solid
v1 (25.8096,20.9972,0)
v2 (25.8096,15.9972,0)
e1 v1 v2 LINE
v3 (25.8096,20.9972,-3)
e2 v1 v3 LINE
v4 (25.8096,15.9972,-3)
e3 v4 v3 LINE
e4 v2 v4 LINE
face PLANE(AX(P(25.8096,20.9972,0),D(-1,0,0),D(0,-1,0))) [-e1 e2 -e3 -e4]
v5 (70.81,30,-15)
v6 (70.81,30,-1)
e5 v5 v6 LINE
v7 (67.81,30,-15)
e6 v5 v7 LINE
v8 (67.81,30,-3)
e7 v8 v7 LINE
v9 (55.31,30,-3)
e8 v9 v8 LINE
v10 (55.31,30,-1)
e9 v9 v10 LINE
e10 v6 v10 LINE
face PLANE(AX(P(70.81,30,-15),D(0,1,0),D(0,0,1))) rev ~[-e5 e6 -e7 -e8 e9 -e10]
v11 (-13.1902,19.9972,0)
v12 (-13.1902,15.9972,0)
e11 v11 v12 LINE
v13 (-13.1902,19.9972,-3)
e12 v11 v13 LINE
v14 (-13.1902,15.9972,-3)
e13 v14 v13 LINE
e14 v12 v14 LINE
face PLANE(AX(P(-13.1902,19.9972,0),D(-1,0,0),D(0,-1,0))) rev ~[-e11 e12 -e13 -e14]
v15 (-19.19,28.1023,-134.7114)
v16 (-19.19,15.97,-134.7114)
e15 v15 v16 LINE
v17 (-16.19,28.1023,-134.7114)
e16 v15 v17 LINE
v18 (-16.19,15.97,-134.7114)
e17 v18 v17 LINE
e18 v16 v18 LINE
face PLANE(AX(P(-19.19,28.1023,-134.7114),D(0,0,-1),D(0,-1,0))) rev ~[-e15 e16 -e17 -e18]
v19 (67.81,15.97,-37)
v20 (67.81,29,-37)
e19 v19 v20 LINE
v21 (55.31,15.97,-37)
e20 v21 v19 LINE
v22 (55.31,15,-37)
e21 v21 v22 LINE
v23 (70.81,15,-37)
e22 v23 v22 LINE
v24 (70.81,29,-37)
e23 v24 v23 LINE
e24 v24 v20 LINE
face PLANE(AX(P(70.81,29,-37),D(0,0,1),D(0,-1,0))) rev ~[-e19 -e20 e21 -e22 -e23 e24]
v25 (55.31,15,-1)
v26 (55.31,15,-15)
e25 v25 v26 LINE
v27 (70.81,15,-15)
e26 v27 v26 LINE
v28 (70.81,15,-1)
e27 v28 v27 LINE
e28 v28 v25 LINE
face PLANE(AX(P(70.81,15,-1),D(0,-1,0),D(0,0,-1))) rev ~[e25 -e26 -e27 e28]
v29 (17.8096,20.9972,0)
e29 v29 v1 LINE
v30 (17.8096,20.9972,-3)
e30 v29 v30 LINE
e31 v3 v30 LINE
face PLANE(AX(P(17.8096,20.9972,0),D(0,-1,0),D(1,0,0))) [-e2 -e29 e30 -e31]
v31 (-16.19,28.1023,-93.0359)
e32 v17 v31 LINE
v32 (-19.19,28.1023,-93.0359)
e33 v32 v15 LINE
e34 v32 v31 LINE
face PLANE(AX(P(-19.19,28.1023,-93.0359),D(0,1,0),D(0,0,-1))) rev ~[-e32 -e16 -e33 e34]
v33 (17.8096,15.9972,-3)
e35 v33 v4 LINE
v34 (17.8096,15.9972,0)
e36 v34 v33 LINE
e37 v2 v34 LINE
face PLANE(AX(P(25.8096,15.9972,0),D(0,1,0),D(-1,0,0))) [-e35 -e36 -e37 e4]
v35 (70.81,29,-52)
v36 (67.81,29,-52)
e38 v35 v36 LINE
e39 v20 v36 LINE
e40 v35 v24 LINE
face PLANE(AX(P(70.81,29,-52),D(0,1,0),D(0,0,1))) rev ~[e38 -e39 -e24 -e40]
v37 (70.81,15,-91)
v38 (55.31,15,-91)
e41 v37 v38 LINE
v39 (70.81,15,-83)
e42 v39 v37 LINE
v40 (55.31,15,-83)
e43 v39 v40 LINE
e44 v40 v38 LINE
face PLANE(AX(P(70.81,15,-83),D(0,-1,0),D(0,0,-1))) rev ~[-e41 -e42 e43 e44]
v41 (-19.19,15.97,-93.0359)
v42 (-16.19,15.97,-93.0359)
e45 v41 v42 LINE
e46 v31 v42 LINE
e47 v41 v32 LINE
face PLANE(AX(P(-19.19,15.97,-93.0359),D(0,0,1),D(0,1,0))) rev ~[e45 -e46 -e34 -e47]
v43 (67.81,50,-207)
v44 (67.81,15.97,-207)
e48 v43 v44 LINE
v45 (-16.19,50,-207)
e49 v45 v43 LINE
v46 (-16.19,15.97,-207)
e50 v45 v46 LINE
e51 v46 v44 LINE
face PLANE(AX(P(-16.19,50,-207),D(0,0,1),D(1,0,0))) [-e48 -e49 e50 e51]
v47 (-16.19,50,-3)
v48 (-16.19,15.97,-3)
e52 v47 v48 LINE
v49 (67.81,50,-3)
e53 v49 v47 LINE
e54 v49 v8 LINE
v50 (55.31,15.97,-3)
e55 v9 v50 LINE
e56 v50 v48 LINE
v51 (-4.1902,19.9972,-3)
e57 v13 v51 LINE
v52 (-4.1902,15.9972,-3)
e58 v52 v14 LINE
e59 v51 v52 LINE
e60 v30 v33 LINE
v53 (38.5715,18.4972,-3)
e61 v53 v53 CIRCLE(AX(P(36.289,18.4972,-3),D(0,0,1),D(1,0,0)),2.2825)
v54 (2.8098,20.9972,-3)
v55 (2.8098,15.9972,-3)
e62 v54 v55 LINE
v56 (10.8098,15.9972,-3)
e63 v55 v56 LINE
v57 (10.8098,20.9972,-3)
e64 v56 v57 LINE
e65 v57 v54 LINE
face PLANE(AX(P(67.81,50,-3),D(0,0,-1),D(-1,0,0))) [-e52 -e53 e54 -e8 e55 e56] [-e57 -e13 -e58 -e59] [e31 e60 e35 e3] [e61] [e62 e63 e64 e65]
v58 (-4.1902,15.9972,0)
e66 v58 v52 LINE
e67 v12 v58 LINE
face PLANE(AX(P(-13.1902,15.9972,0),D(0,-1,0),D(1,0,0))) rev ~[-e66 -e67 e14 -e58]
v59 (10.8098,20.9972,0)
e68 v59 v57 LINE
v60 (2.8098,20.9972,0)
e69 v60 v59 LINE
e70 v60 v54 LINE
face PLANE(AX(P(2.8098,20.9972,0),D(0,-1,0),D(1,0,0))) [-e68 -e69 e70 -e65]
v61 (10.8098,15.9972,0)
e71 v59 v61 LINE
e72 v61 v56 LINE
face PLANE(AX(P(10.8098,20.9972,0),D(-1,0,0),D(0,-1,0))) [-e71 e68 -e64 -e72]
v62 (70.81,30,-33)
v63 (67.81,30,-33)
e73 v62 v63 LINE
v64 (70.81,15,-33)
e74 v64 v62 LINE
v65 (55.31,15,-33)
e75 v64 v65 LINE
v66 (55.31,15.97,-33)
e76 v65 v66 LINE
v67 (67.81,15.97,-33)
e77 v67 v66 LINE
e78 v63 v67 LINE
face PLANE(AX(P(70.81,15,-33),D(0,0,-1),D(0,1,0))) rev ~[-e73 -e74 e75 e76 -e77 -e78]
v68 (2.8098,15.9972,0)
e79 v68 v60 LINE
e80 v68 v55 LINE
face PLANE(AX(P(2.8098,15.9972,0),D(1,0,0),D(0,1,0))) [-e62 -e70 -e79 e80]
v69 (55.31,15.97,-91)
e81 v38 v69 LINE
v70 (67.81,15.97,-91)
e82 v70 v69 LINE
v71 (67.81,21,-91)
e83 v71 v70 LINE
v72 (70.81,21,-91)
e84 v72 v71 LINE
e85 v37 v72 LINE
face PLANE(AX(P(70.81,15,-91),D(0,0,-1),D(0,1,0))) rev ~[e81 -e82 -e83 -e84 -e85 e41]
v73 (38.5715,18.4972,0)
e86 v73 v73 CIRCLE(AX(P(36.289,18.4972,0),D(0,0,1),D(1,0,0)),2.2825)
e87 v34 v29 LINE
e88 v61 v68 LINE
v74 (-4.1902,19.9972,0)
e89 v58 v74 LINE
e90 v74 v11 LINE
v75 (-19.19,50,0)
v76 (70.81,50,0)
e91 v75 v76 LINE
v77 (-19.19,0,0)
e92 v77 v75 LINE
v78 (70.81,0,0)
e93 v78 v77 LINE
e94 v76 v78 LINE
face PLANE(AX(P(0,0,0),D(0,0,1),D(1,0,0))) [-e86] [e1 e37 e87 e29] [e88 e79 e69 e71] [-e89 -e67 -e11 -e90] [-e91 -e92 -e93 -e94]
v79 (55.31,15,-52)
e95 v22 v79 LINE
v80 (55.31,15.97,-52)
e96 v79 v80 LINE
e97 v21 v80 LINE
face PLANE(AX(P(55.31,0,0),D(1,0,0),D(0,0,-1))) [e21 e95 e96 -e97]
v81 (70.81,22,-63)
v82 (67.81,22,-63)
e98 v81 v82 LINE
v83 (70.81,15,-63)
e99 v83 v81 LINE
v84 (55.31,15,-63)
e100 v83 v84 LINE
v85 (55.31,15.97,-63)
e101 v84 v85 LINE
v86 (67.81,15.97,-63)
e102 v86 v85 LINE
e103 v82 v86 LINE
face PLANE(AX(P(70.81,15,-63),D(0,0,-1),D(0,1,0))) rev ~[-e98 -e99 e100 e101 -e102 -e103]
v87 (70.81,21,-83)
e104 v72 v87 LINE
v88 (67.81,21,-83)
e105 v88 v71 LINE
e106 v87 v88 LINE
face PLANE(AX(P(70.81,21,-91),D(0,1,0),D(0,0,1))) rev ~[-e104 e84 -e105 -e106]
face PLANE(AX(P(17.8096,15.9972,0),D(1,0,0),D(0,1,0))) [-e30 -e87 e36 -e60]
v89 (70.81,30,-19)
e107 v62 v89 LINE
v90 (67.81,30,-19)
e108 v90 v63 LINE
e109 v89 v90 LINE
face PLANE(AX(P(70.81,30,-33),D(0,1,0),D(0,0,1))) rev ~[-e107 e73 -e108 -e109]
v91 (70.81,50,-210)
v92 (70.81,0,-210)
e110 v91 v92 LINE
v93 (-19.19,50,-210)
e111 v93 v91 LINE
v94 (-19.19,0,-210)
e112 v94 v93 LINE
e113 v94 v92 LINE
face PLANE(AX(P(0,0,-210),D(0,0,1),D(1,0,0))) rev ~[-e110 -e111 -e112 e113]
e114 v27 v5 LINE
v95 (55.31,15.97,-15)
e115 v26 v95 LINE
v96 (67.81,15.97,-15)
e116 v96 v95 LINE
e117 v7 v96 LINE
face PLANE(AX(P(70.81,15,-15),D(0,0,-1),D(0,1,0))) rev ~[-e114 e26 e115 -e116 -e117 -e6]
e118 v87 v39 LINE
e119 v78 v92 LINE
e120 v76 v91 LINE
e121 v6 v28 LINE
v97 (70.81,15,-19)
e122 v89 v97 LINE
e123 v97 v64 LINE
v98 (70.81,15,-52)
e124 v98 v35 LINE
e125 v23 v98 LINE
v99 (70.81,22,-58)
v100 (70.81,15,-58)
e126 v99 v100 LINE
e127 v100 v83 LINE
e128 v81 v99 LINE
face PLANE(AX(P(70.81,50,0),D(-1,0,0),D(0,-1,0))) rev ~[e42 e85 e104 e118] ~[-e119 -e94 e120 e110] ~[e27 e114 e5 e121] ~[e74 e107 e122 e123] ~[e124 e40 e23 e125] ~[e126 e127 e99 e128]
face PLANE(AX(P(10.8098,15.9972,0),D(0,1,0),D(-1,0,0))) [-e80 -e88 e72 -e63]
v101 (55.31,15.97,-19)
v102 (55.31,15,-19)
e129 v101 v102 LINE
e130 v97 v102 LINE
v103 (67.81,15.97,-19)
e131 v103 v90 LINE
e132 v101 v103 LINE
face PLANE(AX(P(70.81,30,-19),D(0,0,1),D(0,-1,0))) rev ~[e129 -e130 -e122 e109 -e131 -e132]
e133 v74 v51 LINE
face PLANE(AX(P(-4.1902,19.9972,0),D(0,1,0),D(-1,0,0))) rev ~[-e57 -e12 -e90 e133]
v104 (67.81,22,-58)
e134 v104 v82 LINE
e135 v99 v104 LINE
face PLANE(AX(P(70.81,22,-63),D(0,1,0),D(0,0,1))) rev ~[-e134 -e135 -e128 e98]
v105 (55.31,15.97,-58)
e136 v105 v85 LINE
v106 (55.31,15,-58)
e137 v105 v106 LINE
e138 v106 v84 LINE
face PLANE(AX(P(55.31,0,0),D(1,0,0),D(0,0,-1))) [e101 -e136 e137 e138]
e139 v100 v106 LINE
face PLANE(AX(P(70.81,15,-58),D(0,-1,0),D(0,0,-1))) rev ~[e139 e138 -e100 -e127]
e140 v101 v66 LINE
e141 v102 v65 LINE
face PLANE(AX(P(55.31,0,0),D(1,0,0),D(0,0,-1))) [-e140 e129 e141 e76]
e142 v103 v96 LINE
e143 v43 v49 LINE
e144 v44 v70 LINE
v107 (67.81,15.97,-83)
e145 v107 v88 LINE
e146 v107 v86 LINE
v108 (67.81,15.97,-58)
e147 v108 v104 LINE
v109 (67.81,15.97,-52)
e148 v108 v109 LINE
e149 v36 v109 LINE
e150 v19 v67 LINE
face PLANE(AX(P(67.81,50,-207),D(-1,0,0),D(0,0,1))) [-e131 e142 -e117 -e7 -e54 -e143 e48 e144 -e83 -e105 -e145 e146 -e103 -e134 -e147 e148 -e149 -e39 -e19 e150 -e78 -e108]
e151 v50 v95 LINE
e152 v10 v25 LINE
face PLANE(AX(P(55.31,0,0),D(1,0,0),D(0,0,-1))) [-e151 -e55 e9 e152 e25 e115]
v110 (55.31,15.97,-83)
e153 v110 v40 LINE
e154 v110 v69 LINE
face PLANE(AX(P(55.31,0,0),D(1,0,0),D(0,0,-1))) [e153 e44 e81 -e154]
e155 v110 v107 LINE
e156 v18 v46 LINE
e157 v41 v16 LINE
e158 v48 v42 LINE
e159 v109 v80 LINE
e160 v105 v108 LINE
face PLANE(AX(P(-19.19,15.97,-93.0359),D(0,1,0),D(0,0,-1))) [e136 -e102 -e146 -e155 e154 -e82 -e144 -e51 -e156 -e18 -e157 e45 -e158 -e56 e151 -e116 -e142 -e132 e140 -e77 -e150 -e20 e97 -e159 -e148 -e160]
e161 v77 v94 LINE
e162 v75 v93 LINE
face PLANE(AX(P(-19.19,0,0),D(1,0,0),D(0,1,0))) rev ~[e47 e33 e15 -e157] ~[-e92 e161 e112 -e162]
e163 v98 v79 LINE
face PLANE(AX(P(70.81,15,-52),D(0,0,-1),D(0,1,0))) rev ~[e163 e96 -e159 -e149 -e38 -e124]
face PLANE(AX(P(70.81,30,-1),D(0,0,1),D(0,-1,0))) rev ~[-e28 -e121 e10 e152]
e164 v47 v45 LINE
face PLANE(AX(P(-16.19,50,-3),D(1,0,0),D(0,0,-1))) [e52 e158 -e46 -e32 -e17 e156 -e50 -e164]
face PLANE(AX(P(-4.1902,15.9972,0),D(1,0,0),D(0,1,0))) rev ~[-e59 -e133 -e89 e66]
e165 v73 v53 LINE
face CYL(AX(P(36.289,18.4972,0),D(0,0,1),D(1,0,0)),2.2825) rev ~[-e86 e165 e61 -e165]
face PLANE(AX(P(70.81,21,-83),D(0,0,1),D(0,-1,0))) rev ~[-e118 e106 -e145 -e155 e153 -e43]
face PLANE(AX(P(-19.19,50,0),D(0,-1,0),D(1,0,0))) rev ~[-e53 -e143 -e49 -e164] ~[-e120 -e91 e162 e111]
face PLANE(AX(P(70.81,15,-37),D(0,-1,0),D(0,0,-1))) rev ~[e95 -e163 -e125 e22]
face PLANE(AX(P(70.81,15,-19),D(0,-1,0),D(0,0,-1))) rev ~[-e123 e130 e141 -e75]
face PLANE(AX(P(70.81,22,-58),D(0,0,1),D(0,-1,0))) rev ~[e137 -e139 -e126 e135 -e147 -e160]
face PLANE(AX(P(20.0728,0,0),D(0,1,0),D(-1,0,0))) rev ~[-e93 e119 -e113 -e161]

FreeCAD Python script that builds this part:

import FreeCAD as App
import Part
import Sketcher
from FreeCAD import Vector


def add_polygon(sketch, points):
    """Adds a closed chain of lines whose ends are joined by coincident constraints."""
    first, n = sketch.GeometryCount, len(points)
    for a, b in zip(points, points[1:] + points[:1]):
        sketch.addGeometry(Part.LineSegment(App.Vector(*a, 0), App.Vector(*b, 0)), False)
    for i in range(n):
        sketch.addConstraint(Sketcher.Constraint("Coincident", first + i, 2, first + (i + 1) % n, 1))

doc = App.newDocument("Part")
params = doc.addObject("Spreadsheet::Sheet", "Params")
for row, (alias, value) in enumerate([
    ("sketch1_width", "90 mm"),
    ("sketch1_height", "50 mm"),
    ("pad1_length", "210 mm"),
    ("sketch2_width", "84 mm"),
    ("sketch2_height", "204 mm"),
    ("pocket1_length", "34.03 mm"),
    ("sketch3_width", "9 mm"),
    ("sketch3_width2", "8 mm"),
    ("sketch3_height", "4 mm"),
    ("sketch3_height2", "5 mm"),
    ("pocket2_length", "33.25 mm"),
    ("sketch4_width", "15 mm"),
    ("sketch4_width2", "6 mm"),
    ("sketch4_width3", "7 mm"),
    ("sketch4_width4", "14 mm"),
    ("sketch4_height", "8 mm"),
    ("pocket3_length", "15.5 mm"),
    ("pocket4_length", "14.25 mm"),
], start=1):
    params.set(f"A{row}", alias)
    params.set(f"B{row}", "=" + value)
    params.setAlias(f"B{row}", alias)

body = doc.addObject("PartDesign::Body", "Body")

sketch1 = doc.addObject("Sketcher::SketchObject", "Sketch")
body.addObject(sketch1)
sketch1.AttachmentSupport = (doc.XY_Plane, [""])
sketch1.MapMode = "FlatFace"
add_polygon(sketch1, [(-19, 0), (71, 0), (71, 50), (-19, 50)])
sketch1.addConstraint(Sketcher.Constraint("Horizontal", 0))
sketch1.addConstraint(Sketcher.Constraint("Vertical", 1))
sketch1.addConstraint(Sketcher.Constraint("Horizontal", 2))
sketch1.addConstraint(Sketcher.Constraint("Vertical", 3))
sketch1.addConstraint(Sketcher.Constraint("PointOnObject", 0, 2, -1))
sketch1.addConstraint(Sketcher.Constraint("DistanceX", 0, 1, 0, 2, 90.0))
sketch1.addConstraint(Sketcher.Constraint("DistanceY", 1, 1, 1, 2, 50.0))
sketch1.addConstraint(Sketcher.Constraint("DistanceX", -1, 1, 0, 2, 70.81))
sketch1.setExpression("Constraints[9]", "Params.sketch1_width")
sketch1.setExpression("Constraints[10]", "Params.sketch1_height")
pad1 = doc.addObject("PartDesign::Pad", "Pad")
body.addObject(pad1)
pad1.Profile = sketch1
pad1.setExpression("Length", "Params.pad1_length")
pad1.Reversed = True

sketch2 = doc.addObject("Sketcher::SketchObject", "Sketch001")
body.addObject(sketch2)
sketch2.AttachmentSupport = (doc.XZ_Plane, [""])
sketch2.MapMode = "FlatFace"
sketch2.AttachmentOffset = App.Placement(Vector(0, 0, -50), App.Rotation())
add_polygon(sketch2, [(68, -207), (-16, -207), (-16, -3), (68, -3)])
sketch2.addConstraint(Sketcher.Constraint("Horizontal", 0))
sketch2.addConstraint(Sketcher.Constraint("Vertical", 1))
sketch2.addConstraint(Sketcher.Constraint("Horizontal", 2))
sketch2.addConstraint(Sketcher.Constraint("Vertical", 3))
sketch2.addConstraint(Sketcher.Constraint("DistanceY", 1, 2, -1, 1, 3.0))
sketch2.addConstraint(Sketcher.Constraint("DistanceX", 0, 2, 0, 1, 84.0))
sketch2.addConstraint(Sketcher.Constraint("DistanceY", 1, 1, 1, 2, 204.0))
sketch2.addConstraint(Sketcher.Constraint("DistanceX", 0, 2, -1, 1, 16.19))
sketch2.setExpression("Constraints[9]", "Params.sketch2_width")
sketch2.setExpression("Constraints[10]", "Params.sketch2_height")
pocket1 = doc.addObject("PartDesign::Pocket", "Pocket")
body.addObject(pocket1)
pocket1.Profile = sketch2
pocket1.setExpression("Length", "Params.pocket1_length")
pocket1.Reversed = True

sketch3 = doc.addObject("Sketcher::SketchObject", "Sketch002")
body.addObject(sketch3)
sketch3.AttachmentSupport = (doc.XY_Plane, [""])
sketch3.MapMode = "FlatFace"
add_polygon(sketch3, [(-13.2, 20), (-13.2, 16), (-4.2, 16), (-4.2, 20)])
add_polygon(sketch3, [(2.8, 21), (2.8, 16), (10.8, 16), (10.8, 21)])
add_polygon(sketch3, [(17.8, 21), (17.8, 16), (25.8, 16), (25.8, 21)])
sketch3.addGeometry(Part.Circle(Vector(36.3, 18.5, 0), Vector(0, 0, 1), 2.3), False)
sketch3.addConstraint(Sketcher.Constraint("Vertical", 0))
sketch3.addConstraint(Sketcher.Constraint("Horizontal", 1))
sketch3.addConstraint(Sketcher.Constraint("Vertical", 2))
sketch3.addConstraint(Sketcher.Constraint("Horizontal", 3))
sketch3.addConstraint(Sketcher.Constraint("Vertical", 4))
sketch3.addConstraint(Sketcher.Constraint("Horizontal", 5))
sketch3.addConstraint(Sketcher.Constraint("Vertical", 6))
sketch3.addConstraint(Sketcher.Constraint("Horizontal", 7))
sketch3.addConstraint(Sketcher.Constraint("Vertical", 8))
sketch3.addConstraint(Sketcher.Constraint("Horizontal", 9))
sketch3.addConstraint(Sketcher.Constraint("Vertical", 10))
sketch3.addConstraint(Sketcher.Constraint("Horizontal", 11))
sketch3.addConstraint(Sketcher.Constraint("Horizontal", 1, 2, 4, 2))
sketch3.addConstraint(Sketcher.Constraint("Horizontal", 5, 2, 8, 2))
sketch3.addConstraint(Sketcher.Constraint("Horizontal", 7, 2, 10, 2))
sketch3.addConstraint(Sketcher.Constraint("Equal", 7, 9))
sketch3.addConstraint(Sketcher.Constraint("DistanceX", 1, 1, 1, 2, 9.0))
sketch3.addConstraint(Sketcher.Constraint("DistanceX", 5, 1, 5, 2, 8.0))
sketch3.addConstraint(Sketcher.Constraint("DistanceY", 0, 2, 0, 1, 4.0))
sketch3.addConstraint(Sketcher.Constraint("DistanceY", 4, 2, 4, 1, 5.0))
sketch3.addConstraint(Sketcher.Constraint("DistanceX", 1, 2, 4, 2, 7.0))
sketch3.addConstraint(Sketcher.Constraint("Diameter", 12, 4.565))
sketch3.addConstraint(Sketcher.Constraint("DistanceY", 0, 2, 12, 3, 2.5))
sketch3.addConstraint(Sketcher.Constraint("DistanceX", 5, 2, 8, 2, 6.9998))
sketch3.addConstraint(Sketcher.Constraint("DistanceX", -1, 1, 12, 3, 36.289))
sketch3.addConstraint(Sketcher.Constraint("DistanceY", -1, 1, 12, 3, 18.4972))
sketch3.addConstraint(Sketcher.Constraint("DistanceX", 0, 2, -1, 1, 13.1902))
sketch3.setExpression("Constraints[28]", "Params.sketch3_width")
sketch3.setExpression("Constraints[29]", "Params.sketch3_width2")
sketch3.setExpression("Constraints[30]", "Params.sketch3_height")
sketch3.setExpression("Constraints[31]", "Params.sketch3_height2")
pocket2 = doc.addObject("PartDesign::Pocket", "Pocket001")
body.addObject(pocket2)
pocket2.Profile = sketch3
pocket2.setExpression("Length", "Params.pocket2_length")

sketch4 = doc.addObject("Sketcher::SketchObject", "Sketch003")
body.addObject(sketch4)
sketch4.AttachmentSupport = (doc.YZ_Plane, [""])
sketch4.MapMode = "FlatFace"
sketch4.AttachmentOffset = App.Placement(Vector(0, 0, 70.81), App.Rotation())
add_polygon(sketch4, [(30, -1), (15, -1), (15, -15), (30, -15)])
add_polygon(sketch4, [(21, -83), (15, -83), (15, -91), (21, -91)])
add_polygon(sketch4, [(22, -58), (15, -58), (15, -63), (22, -63)])
add_polygon(sketch4, [(29, -37), (15, -37), (15, -52), (29, -52)])
add_polygon(sketch4, [(30, -19), (15, -19), (15, -33), (30, -33)])
sketch4.addConstraint(Sketcher.Constraint("Horizontal", 0))
sketch4.addConstraint(Sketcher.Constraint("Vertical", 1))
sketch4.addConstraint(Sketcher.Constraint("Horizontal", 2))
sketch4.addConstraint(Sketcher.Constraint("Vertical", 3))
sketch4.addConstraint(Sketcher.Constraint("Horizontal", 4))
sketch4.addConstraint(Sketcher.Constraint("Vertical", 5))
sketch4.addConstraint(Sketcher.Constraint("Horizontal", 6))
sketch4.addConstraint(Sketcher.Constraint("Vertical", 7))
sketch4.addConstraint(Sketcher.Constraint("Horizontal", 8))
sketch4.addConstraint(Sketcher.Constraint("Vertical", 9))
sketch4.addConstraint(Sketcher.Constraint("Horizontal", 10))
sketch4.addConstraint(Sketcher.Constraint("Vertical", 11))
sketch4.addConstraint(Sketcher.Constraint("Horizontal", 12))
sketch4.addConstraint(Sketcher.Constraint("Vertical", 13))
sketch4.addConstraint(Sketcher.Constraint("Horizontal", 14))
sketch4.addConstraint(Sketcher.Constraint("Vertical", 15))
sketch4.addConstraint(Sketcher.Constraint("Horizontal", 16))
sketch4.addConstraint(Sketcher.Constraint("Vertical", 17))
sketch4.addConstraint(Sketcher.Constraint("Horizontal", 18))
sketch4.addConstraint(Sketcher.Constraint("Vertical", 19))
sketch4.addConstraint(Sketcher.Constraint("Vertical", 1, 2, 4, 2))
sketch4.addConstraint(Sketcher.Constraint("Vertical", 5, 2, 8, 2))
sketch4.addConstraint(Sketcher.Constraint("Vertical", 9, 2, 12, 2))
sketch4.addConstraint(Sketcher.Constraint("Vertical", 13, 2, 16, 2))
sketch4.addConstraint(Sketcher.Constraint("Vertical", 3, 2, 18, 2))
sketch4.addConstraint(Sketcher.Constraint("Equal", 14, 1))
sketch4.addConstraint(Sketcher.Constraint("Equal", 18, 13))
sketch4.addConstraint(Sketcher.Constraint("Equal", 3, 17))
sketch4.addConstraint(Sketcher.Constraint("DistanceX", 0, 2, 0, 1, 15.0))
sketch4.addConstraint(Sketcher.Constraint("DistanceX", 4, 2, 4, 1, 6.0))
sketch4.addConstraint(Sketcher.Constraint("DistanceX", 8, 2, 8, 1, 7.0))
sketch4.addConstraint(Sketcher.Constraint("DistanceX", 12, 2, 12, 1, 14.0))
sketch4.addConstraint(Sketcher.Constraint("DistanceY", 5, 2, 5, 1, 8.0))
sketch4.addConstraint(Sketcher.Constraint("DistanceY", 9, 2, 9, 1, 5.0))
sketch4.addConstraint(Sketcher.Constraint("DistanceX", -1, 1, 0, 2, 15.0))
sketch4.addConstraint(Sketcher.Constraint("DistanceY", 0, 2, -1, 1, 1.0))
sketch4.addConstraint(Sketcher.Constraint("DistanceY", 4, 2, 9, 2, 20.0))
sketch4.addConstraint(Sketcher.Constraint("DistanceY", 8, 2, 13, 2, 6.0))
sketch4.addConstraint(Sketcher.Constraint("DistanceY", 16, 2, 1, 2, 4.0))
sketch4.addConstraint(Sketcher.Constraint("DistanceY", 12, 2, 17, 2, 4.0))
sketch4.setExpression("Constraints[48]", "Params.sketch4_width")
sketch4.setExpression("Constraints[49]", "Params.sketch4_width2")
sketch4.setExpression("Constraints[50]", "Params.sketch4_width3")
sketch4.setExpression("Constraints[51]", "Params.sketch4_width4")
sketch4.setExpression("Constraints[52]", "Params.sketch4_height")
pocket3 = doc.addObject("PartDesign::Pocket", "Pocket002")
body.addObject(pocket3)
pocket3.Profile = sketch4
pocket3.setExpression("Length", "Params.pocket3_length")

sketch5 = doc.addObject("Sketcher::SketchObject", "Sketch004")
body.addObject(sketch5)
sketch5.AttachmentSupport = (doc.YZ_Plane, [""])
sketch5.MapMode = "FlatFace"
sketch5.AttachmentOffset = App.Placement(Vector(0, 0, -19.19), App.Rotation())
add_polygon(sketch5, [(16, -135), (16, -93), (28, -93), (28, -135)])
sketch5.addConstraint(Sketcher.Constraint("Vertical", 0))
sketch5.addConstraint(Sketcher.Constraint("Horizontal", 1))
sketch5.addConstraint(Sketcher.Constraint("Vertical", 2))
sketch5.addConstraint(Sketcher.Constraint("Horizontal", 3))
sketch5.addConstraint(Sketcher.Constraint("DistanceX", -1, 1, 0, 2, 15.97))
sketch5.addConstraint(Sketcher.Constraint("DistanceX", 1, 1, 1, 2, 12.1323))
sketch5.addConstraint(Sketcher.Constraint("DistanceY", 0, 1, 0, 2, 41.6755))
sketch5.addConstraint(Sketcher.Constraint("DistanceY", 0, 2, -1, 1, 93.036))
pocket4 = doc.addObject("PartDesign::Pocket", "Pocket003")
body.addObject(pocket4)
pocket4.Profile = sketch5
pocket4.setExpression("Length", "Params.pocket4_length")
pocket4.Reversed = True

doc.recompute()
